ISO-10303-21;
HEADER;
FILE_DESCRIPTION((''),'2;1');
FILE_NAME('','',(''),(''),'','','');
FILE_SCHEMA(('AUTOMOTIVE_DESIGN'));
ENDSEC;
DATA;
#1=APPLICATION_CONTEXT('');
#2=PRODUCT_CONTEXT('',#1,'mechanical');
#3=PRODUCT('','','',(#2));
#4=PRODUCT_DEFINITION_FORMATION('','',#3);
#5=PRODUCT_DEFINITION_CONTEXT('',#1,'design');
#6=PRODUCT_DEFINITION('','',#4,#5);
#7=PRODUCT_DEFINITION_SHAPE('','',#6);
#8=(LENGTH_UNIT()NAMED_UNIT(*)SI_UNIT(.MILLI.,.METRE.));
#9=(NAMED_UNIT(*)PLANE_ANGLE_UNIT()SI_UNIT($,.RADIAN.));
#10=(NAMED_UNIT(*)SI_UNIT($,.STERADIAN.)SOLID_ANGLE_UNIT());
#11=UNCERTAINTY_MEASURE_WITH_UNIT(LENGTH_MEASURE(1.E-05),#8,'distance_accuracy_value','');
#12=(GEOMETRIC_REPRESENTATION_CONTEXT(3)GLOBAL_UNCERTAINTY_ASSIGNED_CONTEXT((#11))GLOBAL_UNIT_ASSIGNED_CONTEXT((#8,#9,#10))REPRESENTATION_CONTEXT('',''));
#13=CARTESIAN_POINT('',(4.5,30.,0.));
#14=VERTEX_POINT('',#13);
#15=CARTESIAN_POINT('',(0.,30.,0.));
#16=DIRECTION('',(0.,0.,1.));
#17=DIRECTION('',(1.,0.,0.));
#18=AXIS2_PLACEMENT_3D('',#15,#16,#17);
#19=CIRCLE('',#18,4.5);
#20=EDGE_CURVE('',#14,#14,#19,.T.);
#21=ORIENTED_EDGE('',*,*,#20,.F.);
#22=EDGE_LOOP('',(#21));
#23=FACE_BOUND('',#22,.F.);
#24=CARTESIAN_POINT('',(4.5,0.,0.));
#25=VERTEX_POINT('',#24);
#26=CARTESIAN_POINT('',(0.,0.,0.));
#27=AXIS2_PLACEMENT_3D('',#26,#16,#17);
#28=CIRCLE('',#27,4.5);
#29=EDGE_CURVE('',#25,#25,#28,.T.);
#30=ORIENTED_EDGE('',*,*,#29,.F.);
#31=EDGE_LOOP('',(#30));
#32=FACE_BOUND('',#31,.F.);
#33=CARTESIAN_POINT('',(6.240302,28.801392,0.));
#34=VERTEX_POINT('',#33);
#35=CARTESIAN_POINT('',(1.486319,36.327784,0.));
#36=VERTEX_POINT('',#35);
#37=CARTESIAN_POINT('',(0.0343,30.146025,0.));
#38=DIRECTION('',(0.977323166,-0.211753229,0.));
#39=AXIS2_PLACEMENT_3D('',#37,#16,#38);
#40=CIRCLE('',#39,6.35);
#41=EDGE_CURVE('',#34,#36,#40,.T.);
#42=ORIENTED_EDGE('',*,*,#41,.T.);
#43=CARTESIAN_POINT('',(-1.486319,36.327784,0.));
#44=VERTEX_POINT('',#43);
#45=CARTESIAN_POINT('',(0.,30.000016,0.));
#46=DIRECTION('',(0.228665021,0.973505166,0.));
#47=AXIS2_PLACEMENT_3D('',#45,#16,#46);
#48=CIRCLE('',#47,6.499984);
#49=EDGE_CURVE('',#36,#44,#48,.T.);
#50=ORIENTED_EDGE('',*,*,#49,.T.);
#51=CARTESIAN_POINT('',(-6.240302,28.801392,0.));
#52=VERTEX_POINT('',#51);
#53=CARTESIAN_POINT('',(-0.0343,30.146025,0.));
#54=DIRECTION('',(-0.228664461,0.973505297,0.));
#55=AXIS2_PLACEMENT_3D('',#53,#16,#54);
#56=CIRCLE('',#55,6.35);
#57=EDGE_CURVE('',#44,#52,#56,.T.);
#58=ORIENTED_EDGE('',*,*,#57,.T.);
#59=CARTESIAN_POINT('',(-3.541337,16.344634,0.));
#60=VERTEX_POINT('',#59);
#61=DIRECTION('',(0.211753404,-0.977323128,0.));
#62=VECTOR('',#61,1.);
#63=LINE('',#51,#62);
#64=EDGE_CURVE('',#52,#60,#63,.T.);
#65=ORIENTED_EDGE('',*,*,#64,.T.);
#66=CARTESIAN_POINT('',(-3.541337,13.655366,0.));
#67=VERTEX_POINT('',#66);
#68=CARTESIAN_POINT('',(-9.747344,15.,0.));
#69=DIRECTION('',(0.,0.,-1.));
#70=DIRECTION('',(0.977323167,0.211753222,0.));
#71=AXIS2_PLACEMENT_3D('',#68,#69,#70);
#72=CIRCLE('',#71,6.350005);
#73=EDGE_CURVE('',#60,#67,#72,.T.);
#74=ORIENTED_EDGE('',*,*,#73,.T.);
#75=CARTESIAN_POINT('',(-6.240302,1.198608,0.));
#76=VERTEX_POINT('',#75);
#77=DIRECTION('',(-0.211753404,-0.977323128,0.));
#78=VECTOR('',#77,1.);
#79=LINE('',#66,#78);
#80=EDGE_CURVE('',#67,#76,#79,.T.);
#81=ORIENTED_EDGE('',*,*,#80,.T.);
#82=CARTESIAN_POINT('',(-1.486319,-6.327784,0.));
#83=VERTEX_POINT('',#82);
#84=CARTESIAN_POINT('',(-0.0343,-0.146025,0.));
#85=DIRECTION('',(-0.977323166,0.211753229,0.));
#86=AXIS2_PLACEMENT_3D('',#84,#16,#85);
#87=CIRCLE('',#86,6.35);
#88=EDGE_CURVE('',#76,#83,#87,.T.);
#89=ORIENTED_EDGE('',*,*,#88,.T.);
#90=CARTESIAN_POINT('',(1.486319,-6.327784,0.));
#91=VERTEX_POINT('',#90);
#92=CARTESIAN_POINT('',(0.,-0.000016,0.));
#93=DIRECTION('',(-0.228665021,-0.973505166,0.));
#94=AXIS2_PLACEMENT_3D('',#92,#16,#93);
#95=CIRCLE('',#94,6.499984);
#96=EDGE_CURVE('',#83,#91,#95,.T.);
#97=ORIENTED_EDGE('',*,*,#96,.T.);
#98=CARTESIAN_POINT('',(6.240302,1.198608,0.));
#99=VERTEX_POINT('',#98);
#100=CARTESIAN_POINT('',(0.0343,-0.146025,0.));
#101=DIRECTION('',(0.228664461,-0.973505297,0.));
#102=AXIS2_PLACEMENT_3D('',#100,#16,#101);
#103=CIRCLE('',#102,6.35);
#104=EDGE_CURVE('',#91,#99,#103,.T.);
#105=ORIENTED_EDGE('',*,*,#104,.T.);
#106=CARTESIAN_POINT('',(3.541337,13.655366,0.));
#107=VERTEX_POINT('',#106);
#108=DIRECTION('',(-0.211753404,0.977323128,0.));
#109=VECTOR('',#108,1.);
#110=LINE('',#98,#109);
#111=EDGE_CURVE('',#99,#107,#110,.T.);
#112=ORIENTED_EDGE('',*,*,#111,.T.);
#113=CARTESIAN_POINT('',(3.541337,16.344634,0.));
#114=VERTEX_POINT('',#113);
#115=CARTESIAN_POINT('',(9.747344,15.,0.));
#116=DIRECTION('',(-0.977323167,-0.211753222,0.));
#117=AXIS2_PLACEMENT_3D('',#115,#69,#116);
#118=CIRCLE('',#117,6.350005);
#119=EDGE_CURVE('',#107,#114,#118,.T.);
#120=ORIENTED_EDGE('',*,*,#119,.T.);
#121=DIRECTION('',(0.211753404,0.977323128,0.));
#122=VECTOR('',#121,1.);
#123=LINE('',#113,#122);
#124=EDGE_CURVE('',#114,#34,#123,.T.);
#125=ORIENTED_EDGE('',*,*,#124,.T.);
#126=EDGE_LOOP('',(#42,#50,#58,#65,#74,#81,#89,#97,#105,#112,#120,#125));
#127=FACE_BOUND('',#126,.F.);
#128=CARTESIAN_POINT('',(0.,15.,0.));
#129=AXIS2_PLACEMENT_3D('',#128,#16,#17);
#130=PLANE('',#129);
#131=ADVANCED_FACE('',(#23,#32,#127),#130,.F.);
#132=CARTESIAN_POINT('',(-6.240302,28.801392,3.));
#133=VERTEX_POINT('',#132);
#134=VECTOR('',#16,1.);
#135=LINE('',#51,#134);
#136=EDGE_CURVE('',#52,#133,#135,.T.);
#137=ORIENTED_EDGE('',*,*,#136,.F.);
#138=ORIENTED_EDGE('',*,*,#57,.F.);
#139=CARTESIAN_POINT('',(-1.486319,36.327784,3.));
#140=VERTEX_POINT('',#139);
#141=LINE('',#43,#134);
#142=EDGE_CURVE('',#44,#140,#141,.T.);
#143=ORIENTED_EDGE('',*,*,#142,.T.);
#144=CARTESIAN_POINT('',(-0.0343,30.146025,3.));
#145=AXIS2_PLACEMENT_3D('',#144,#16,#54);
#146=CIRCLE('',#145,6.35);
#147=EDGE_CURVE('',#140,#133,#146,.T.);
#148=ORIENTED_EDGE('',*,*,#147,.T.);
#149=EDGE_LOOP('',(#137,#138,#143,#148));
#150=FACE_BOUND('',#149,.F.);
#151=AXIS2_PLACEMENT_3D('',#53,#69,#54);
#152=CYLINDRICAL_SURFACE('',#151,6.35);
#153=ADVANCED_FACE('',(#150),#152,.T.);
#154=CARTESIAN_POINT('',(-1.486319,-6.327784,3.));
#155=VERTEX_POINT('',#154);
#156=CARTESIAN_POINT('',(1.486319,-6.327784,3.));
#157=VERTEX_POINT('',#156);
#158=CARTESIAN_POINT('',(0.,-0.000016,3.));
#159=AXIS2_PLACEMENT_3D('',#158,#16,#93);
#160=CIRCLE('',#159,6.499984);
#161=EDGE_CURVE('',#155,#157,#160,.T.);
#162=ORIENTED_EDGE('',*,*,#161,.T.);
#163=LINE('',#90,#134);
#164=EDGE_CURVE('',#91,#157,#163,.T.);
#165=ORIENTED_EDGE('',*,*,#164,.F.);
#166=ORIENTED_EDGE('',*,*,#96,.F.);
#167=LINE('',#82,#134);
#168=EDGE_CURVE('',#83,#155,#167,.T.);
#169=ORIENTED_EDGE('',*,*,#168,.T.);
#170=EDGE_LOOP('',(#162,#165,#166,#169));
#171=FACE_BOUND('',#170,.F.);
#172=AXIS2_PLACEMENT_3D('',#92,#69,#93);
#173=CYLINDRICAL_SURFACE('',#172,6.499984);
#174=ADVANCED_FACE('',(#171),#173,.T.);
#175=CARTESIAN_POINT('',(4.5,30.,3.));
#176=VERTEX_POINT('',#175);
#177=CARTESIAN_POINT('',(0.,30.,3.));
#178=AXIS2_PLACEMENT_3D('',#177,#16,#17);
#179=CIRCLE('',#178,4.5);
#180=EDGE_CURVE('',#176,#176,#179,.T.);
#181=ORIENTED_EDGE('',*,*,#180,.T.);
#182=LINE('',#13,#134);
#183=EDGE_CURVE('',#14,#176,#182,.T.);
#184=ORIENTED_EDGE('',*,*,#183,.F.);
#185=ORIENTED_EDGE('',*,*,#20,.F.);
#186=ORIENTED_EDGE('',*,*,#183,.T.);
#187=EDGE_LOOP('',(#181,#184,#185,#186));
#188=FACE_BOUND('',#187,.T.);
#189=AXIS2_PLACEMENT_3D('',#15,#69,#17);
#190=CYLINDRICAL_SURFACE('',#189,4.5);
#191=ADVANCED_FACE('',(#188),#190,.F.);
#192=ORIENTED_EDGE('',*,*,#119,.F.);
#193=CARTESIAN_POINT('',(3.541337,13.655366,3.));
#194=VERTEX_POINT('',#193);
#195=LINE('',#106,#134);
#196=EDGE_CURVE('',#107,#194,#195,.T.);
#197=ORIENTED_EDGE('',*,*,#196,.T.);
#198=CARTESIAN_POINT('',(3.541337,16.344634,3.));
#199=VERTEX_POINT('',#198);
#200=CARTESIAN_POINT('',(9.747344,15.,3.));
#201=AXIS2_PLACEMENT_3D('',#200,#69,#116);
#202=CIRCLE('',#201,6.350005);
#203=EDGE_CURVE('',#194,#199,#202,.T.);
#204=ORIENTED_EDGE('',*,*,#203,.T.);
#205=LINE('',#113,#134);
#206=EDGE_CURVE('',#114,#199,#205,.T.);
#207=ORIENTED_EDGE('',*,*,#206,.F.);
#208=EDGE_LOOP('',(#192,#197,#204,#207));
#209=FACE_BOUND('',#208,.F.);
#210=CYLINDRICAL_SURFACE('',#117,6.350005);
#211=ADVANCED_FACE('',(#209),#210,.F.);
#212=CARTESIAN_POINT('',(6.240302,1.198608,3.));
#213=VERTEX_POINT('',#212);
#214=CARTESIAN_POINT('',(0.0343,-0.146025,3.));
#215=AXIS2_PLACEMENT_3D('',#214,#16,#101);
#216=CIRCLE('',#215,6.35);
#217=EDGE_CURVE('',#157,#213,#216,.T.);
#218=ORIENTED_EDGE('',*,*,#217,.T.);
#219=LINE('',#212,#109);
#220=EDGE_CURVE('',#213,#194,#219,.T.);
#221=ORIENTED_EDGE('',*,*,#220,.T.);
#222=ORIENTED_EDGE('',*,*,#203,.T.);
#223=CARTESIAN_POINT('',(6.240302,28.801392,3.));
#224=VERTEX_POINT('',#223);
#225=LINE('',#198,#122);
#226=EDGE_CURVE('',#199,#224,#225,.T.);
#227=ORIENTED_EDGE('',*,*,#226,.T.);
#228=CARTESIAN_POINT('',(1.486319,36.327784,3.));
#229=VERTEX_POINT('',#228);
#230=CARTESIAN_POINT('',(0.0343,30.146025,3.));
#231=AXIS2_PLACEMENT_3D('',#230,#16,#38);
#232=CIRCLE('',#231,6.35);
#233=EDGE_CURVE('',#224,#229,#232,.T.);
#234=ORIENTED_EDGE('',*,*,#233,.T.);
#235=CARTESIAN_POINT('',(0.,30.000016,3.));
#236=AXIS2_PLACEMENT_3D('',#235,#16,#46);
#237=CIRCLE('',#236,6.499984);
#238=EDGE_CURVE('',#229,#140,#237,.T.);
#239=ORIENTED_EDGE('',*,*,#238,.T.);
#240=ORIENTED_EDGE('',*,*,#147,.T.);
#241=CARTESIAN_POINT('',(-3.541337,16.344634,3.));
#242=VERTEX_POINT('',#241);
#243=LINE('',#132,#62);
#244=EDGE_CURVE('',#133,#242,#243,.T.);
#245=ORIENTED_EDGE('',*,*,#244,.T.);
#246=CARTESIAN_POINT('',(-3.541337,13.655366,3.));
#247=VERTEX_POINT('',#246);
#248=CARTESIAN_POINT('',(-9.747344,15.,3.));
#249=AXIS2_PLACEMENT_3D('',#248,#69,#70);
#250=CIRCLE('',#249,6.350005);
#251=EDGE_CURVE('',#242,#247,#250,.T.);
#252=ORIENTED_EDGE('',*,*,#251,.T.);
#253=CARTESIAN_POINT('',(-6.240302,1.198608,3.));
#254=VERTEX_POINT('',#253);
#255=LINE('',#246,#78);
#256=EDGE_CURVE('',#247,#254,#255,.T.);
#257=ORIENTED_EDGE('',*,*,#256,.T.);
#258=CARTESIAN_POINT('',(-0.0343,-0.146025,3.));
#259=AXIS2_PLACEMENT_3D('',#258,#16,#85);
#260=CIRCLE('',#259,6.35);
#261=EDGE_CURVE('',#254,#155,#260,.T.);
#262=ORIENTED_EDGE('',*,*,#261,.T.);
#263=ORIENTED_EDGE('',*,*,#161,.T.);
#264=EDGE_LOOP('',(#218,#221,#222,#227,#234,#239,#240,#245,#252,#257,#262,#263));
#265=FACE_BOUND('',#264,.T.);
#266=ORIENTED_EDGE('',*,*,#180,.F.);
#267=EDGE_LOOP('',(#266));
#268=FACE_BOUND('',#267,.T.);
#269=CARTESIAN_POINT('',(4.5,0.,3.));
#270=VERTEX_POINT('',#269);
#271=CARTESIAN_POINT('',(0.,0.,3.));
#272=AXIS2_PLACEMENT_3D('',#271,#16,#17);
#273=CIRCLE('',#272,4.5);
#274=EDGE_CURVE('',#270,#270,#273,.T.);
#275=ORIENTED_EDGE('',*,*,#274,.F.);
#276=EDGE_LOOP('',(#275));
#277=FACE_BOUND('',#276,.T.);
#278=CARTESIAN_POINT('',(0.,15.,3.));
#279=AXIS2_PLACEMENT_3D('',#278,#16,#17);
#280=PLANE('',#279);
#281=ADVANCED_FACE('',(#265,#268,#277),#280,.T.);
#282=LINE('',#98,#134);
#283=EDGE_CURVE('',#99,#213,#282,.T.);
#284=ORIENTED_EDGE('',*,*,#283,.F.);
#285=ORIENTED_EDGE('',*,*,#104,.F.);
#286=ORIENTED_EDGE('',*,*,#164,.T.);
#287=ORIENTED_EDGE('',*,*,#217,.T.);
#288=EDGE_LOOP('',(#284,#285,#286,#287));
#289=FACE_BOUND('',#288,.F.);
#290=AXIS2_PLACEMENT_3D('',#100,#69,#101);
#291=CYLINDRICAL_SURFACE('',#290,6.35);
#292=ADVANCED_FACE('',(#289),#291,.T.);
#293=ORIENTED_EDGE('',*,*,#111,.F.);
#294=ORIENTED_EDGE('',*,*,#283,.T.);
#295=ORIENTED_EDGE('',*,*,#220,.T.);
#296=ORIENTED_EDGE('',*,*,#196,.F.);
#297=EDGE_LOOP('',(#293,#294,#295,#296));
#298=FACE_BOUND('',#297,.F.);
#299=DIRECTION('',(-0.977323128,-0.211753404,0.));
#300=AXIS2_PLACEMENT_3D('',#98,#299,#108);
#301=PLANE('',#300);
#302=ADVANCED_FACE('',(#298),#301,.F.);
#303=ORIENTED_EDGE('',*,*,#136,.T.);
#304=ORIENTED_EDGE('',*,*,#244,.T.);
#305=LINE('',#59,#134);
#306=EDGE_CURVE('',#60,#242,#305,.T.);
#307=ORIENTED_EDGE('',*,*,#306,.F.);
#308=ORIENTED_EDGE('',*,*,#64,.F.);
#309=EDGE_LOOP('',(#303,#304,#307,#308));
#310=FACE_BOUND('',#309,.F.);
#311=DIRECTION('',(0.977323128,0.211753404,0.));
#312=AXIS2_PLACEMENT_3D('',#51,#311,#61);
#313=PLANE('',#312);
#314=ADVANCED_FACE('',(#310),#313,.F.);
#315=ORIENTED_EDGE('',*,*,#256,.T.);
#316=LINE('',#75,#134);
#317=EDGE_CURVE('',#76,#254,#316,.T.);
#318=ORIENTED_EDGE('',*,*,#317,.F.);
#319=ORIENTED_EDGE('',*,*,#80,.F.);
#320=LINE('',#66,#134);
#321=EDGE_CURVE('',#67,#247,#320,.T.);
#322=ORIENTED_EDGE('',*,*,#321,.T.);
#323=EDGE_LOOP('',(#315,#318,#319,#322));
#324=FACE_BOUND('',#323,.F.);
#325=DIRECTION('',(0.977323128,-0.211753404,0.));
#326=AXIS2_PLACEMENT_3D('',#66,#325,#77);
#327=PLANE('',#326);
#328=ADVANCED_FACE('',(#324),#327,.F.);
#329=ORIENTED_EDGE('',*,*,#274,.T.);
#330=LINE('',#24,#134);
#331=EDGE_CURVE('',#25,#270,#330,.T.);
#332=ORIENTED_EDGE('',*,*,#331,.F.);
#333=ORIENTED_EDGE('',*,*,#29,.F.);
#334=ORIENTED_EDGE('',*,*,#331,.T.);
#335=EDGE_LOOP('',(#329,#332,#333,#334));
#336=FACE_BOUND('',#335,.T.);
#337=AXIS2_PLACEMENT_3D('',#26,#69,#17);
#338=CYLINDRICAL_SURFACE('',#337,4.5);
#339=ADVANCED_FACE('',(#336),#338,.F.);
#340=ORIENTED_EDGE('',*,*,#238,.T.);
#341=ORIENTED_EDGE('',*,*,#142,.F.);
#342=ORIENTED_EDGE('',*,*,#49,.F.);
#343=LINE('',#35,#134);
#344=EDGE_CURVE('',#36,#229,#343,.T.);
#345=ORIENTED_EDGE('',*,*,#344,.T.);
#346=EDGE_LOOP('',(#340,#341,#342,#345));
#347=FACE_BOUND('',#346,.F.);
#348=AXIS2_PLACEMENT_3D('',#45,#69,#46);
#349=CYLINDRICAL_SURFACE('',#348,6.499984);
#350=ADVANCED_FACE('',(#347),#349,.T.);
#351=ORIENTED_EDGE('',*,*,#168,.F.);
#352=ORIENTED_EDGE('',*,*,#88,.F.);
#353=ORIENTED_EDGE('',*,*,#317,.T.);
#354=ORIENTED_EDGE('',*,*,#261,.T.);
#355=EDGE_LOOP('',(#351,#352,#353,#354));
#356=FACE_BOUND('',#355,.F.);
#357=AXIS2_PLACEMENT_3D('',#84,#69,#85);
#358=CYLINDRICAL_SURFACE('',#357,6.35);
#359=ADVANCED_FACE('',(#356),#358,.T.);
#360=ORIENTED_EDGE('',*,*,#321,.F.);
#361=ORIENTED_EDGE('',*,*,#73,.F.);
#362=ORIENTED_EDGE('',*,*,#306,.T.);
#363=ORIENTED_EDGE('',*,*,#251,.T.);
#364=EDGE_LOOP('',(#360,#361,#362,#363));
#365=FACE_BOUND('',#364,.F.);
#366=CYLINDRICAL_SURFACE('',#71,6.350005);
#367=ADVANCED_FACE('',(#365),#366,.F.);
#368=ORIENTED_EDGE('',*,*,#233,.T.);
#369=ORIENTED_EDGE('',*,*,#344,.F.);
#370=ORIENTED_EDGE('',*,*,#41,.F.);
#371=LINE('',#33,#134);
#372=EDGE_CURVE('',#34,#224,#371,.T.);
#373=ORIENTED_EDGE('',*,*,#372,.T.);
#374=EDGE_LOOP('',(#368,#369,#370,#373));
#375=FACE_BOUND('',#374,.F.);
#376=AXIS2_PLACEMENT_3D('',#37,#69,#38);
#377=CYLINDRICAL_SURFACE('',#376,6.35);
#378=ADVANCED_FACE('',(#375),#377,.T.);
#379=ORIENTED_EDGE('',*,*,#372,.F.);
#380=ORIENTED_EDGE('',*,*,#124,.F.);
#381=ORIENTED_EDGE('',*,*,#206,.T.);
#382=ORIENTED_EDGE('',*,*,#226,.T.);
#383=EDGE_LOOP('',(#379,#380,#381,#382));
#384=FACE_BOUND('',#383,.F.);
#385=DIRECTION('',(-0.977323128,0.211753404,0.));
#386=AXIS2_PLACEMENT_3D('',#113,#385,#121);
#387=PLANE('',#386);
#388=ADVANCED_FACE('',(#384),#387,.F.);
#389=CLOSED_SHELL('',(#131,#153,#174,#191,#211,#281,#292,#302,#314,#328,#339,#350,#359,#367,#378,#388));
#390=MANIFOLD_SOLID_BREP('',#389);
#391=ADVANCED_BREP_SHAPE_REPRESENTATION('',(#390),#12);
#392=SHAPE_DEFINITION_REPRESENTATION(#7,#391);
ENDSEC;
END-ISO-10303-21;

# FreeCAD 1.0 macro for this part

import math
import FreeCAD as App
import Part
import Sketcher
from FreeCAD import Vector
Q = App.Units.Quantity

doc = App.newDocument("Part")
body = doc.addObject("PartDesign::Body", "Body")

sketch1 = body.newObject("Sketcher::SketchObject", "Sketch")
sketch1.AttachmentSupport = (doc.getObject("XY_Plane"), [""])
sketch1.MapMode = "FlatFace"
sketch1.addGeometry(Part.ArcOfCircle(Part.Circle(Vector(0.0343, 30.146025, 0), Vector(0, 0, 1), 6.35), math.radians(-12.225116), math.radians(76.781544)), False)
sketch1.addGeometry(Part.ArcOfCircle(Part.Circle(Vector(0, 30.000016, 0), Vector(0, 0, 1), 6.499984), math.radians(76.781511), math.radians(103.218489)), False)
sketch1.addGeometry(Part.ArcOfCircle(Part.Circle(Vector(-0.0343, 30.146025, 0), Vector(0, 0, 1), 6.35), math.radians(103.218456), math.radians(192.225116)), False)
sketch1.addGeometry(Part.LineSegment(Vector(-6.240302, 28.801392, 0), Vector(-3.541337, 16.344634, 0)), False)
sketch1.addGeometry(Part.ArcOfCircle(Part.Circle(Vector(-9.747344, 15, 0), Vector(0, 0, 1), 6.350005), math.radians(-12.225115), math.radians(12.225115)), False)
sketch1.addGeometry(Part.LineSegment(Vector(-3.541337, 13.655366, 0), Vector(-6.240302, 1.198608, 0)), False)
sketch1.addGeometry(Part.ArcOfCircle(Part.Circle(Vector(-0.0343, -0.146025, 0), Vector(0, 0, 1), 6.35), math.radians(167.774884), math.radians(256.781544)), False)
sketch1.addGeometry(Part.ArcOfCircle(Part.Circle(Vector(0, -0.000016, 0), Vector(0, 0, 1), 6.499984), math.radians(-103.218489), math.radians(-76.781511)), False)
sketch1.addGeometry(Part.ArcOfCircle(Part.Circle(Vector(0.0343, -0.146025, 0), Vector(0, 0, 1), 6.35), math.radians(-76.781544), math.radians(12.225116)), False)
sketch1.addGeometry(Part.LineSegment(Vector(6.240302, 1.198608, 0), Vector(3.541337, 13.655366, 0)), False)
sketch1.addGeometry(Part.ArcOfCircle(Part.Circle(Vector(9.747344, 15, 0), Vector(0, 0, 1), 6.350005), math.radians(167.774885), math.radians(192.225115)), False)
sketch1.addGeometry(Part.LineSegment(Vector(3.541337, 16.344634, 0), Vector(6.240302, 28.801392, 0)), False)
sketch1.addGeometry(Part.Circle(Vector(0, 0, 0), Vector(0, 0, 1), 4.5), False)
sketch1.addGeometry(Part.Circle(Vector(0, 30, 0), Vector(0, 0, 1), 4.5), False)
sketch1.addConstraint(Sketcher.Constraint("Coincident", 0, 2, 1, 1))
sketch1.addConstraint(Sketcher.Constraint("Coincident", 1, 2, 2, 1))
sketch1.addConstraint(Sketcher.Constraint("Coincident", 2, 2, 3, 1))
sketch1.addConstraint(Sketcher.Constraint("Coincident", 3, 2, 4, 2))
sketch1.addConstraint(Sketcher.Constraint("Coincident", 4, 1, 5, 1))
sketch1.addConstraint(Sketcher.Constraint("Coincident", 5, 2, 6, 1))
sketch1.addConstraint(Sketcher.Constraint("Coincident", 6, 2, 7, 1))
sketch1.addConstraint(Sketcher.Constraint("Coincident", 7, 2, 8, 1))
sketch1.addConstraint(Sketcher.Constraint("Coincident", 8, 2, 9, 1))
sketch1.addConstraint(Sketcher.Constraint("Coincident", 9, 2, 10, 2))
sketch1.addConstraint(Sketcher.Constraint("Coincident", 10, 1, 11, 1))
sketch1.addConstraint(Sketcher.Constraint("Coincident", 11, 2, 0, 1))
sketch1.addConstraint(Sketcher.Constraint("Coincident", 12, 3, -1, 1))
sketch1.addConstraint(Sketcher.Constraint("PointOnObject", 1, 3, -2))
sketch1.addConstraint(Sketcher.Constraint("PointOnObject", 7, 3, -2))
sketch1.addConstraint(Sketcher.Constraint("PointOnObject", 13, 3, -2))
sketch1.addConstraint(Sketcher.Constraint("Diameter", 12, Q("9 mm")))
sketch1.addConstraint(Sketcher.Constraint("Diameter", 13, Q("9 mm")))
sketch1.addConstraint(Sketcher.Constraint("Radius", 0, Q("6.35 mm")))
sketch1.addConstraint(Sketcher.Constraint("Radius", 2, Q("6.35 mm")))
sketch1.addConstraint(Sketcher.Constraint("Radius", 6, Q("6.35 mm")))
sketch1.addConstraint(Sketcher.Constraint("Radius", 8, Q("6.35 mm")))
sketch1.addConstraint(Sketcher.Constraint("DistanceY", -1, 1, 4, 3, Q("15 mm")))
sketch1.addConstraint(Sketcher.Constraint("DistanceY", -1, 1, 10, 3, Q("15 mm")))
sketch1.addConstraint(Sketcher.Constraint("DistanceY", -1, 1, 13, 3, Q("30 mm")))
sketch1.addConstraint(Sketcher.Constraint("Radius", 1, Q("6.499984 mm")))
sketch1.addConstraint(Sketcher.Constraint("Radius", 4, Q("6.350005 mm")))
sketch1.addConstraint(Sketcher.Constraint("Radius", 7, Q("6.499984 mm")))
sketch1.addConstraint(Sketcher.Constraint("Radius", 10, Q("6.350005 mm")))
sketch1.addConstraint(Sketcher.Constraint("DistanceX", -1, 1, 0, 3, Q("0.0343 mm")))
sketch1.addConstraint(Sketcher.Constraint("DistanceX", 2, 3, -1, 1, Q("0.0343 mm")))
sketch1.addConstraint(Sketcher.Constraint("DistanceX", 6, 3, -1, 1, Q("0.0343 mm")))
sketch1.addConstraint(Sketcher.Constraint("DistanceX", -1, 1, 8, 3, Q("0.0343 mm")))
sketch1.addConstraint(Sketcher.Constraint("DistanceX", 2, 2, -1, 1, Q("6.240302 mm")))
sketch1.addConstraint(Sketcher.Constraint("DistanceX", 5, 2, -1, 1, Q("6.240302 mm")))
sketch1.addConstraint(Sketcher.Constraint("DistanceX", -1, 1, 8, 2, Q("6.240302 mm")))
sketch1.addConstraint(Sketcher.Constraint("DistanceX", -1, 1, 11, 2, Q("6.240302 mm")))
sketch1.addConstraint(Sketcher.Constraint("DistanceX", -1, 1, 0, 2, Q("1.486319 mm")))
sketch1.addConstraint(Sketcher.Constraint("DistanceX", 1, 2, -1, 1, Q("1.486319 mm")))
sketch1.addConstraint(Sketcher.Constraint("DistanceX", 6, 2, -1, 1, Q("1.486319 mm")))
sketch1.addConstraint(Sketcher.Constraint("DistanceX", -1, 1, 7, 2, Q("1.486319 mm")))
sketch1.addConstraint(Sketcher.Constraint("DistanceY", -1, 1, 11, 2, Q("28.801392 mm")))
sketch1.addConstraint(Sketcher.Constraint("DistanceY", 6, 3, 1, 3, Q("30.146041 mm")))
sketch1.addConstraint(Sketcher.Constraint("DistanceY", 3, 2, 2, 2, Q("12.456758 mm")))
sketch1.addConstraint(Sketcher.Constraint("DistanceX", 3, 2, 10, 3, Q("13.288681 mm")))
sketch1.addConstraint(Sketcher.Constraint("DistanceY", 4, 1, 3, 2, Q("2.689268 mm")))
sketch1.addConstraint(Sketcher.Constraint("DistanceY", 8, 2, 9, 2, Q("12.456758 mm")))
sketch1.addConstraint(Sketcher.Constraint("DistanceY", 9, 2, 10, 1, Q("2.689268 mm")))
sketch1.addConstraint(Sketcher.Constraint("Distance", 3, Q("12.745793 mm")))
pad1 = body.newObject("PartDesign::Pad", "Pad")
pad1.Profile = sketch1
pad1.Length = 3

doc.recompute()
